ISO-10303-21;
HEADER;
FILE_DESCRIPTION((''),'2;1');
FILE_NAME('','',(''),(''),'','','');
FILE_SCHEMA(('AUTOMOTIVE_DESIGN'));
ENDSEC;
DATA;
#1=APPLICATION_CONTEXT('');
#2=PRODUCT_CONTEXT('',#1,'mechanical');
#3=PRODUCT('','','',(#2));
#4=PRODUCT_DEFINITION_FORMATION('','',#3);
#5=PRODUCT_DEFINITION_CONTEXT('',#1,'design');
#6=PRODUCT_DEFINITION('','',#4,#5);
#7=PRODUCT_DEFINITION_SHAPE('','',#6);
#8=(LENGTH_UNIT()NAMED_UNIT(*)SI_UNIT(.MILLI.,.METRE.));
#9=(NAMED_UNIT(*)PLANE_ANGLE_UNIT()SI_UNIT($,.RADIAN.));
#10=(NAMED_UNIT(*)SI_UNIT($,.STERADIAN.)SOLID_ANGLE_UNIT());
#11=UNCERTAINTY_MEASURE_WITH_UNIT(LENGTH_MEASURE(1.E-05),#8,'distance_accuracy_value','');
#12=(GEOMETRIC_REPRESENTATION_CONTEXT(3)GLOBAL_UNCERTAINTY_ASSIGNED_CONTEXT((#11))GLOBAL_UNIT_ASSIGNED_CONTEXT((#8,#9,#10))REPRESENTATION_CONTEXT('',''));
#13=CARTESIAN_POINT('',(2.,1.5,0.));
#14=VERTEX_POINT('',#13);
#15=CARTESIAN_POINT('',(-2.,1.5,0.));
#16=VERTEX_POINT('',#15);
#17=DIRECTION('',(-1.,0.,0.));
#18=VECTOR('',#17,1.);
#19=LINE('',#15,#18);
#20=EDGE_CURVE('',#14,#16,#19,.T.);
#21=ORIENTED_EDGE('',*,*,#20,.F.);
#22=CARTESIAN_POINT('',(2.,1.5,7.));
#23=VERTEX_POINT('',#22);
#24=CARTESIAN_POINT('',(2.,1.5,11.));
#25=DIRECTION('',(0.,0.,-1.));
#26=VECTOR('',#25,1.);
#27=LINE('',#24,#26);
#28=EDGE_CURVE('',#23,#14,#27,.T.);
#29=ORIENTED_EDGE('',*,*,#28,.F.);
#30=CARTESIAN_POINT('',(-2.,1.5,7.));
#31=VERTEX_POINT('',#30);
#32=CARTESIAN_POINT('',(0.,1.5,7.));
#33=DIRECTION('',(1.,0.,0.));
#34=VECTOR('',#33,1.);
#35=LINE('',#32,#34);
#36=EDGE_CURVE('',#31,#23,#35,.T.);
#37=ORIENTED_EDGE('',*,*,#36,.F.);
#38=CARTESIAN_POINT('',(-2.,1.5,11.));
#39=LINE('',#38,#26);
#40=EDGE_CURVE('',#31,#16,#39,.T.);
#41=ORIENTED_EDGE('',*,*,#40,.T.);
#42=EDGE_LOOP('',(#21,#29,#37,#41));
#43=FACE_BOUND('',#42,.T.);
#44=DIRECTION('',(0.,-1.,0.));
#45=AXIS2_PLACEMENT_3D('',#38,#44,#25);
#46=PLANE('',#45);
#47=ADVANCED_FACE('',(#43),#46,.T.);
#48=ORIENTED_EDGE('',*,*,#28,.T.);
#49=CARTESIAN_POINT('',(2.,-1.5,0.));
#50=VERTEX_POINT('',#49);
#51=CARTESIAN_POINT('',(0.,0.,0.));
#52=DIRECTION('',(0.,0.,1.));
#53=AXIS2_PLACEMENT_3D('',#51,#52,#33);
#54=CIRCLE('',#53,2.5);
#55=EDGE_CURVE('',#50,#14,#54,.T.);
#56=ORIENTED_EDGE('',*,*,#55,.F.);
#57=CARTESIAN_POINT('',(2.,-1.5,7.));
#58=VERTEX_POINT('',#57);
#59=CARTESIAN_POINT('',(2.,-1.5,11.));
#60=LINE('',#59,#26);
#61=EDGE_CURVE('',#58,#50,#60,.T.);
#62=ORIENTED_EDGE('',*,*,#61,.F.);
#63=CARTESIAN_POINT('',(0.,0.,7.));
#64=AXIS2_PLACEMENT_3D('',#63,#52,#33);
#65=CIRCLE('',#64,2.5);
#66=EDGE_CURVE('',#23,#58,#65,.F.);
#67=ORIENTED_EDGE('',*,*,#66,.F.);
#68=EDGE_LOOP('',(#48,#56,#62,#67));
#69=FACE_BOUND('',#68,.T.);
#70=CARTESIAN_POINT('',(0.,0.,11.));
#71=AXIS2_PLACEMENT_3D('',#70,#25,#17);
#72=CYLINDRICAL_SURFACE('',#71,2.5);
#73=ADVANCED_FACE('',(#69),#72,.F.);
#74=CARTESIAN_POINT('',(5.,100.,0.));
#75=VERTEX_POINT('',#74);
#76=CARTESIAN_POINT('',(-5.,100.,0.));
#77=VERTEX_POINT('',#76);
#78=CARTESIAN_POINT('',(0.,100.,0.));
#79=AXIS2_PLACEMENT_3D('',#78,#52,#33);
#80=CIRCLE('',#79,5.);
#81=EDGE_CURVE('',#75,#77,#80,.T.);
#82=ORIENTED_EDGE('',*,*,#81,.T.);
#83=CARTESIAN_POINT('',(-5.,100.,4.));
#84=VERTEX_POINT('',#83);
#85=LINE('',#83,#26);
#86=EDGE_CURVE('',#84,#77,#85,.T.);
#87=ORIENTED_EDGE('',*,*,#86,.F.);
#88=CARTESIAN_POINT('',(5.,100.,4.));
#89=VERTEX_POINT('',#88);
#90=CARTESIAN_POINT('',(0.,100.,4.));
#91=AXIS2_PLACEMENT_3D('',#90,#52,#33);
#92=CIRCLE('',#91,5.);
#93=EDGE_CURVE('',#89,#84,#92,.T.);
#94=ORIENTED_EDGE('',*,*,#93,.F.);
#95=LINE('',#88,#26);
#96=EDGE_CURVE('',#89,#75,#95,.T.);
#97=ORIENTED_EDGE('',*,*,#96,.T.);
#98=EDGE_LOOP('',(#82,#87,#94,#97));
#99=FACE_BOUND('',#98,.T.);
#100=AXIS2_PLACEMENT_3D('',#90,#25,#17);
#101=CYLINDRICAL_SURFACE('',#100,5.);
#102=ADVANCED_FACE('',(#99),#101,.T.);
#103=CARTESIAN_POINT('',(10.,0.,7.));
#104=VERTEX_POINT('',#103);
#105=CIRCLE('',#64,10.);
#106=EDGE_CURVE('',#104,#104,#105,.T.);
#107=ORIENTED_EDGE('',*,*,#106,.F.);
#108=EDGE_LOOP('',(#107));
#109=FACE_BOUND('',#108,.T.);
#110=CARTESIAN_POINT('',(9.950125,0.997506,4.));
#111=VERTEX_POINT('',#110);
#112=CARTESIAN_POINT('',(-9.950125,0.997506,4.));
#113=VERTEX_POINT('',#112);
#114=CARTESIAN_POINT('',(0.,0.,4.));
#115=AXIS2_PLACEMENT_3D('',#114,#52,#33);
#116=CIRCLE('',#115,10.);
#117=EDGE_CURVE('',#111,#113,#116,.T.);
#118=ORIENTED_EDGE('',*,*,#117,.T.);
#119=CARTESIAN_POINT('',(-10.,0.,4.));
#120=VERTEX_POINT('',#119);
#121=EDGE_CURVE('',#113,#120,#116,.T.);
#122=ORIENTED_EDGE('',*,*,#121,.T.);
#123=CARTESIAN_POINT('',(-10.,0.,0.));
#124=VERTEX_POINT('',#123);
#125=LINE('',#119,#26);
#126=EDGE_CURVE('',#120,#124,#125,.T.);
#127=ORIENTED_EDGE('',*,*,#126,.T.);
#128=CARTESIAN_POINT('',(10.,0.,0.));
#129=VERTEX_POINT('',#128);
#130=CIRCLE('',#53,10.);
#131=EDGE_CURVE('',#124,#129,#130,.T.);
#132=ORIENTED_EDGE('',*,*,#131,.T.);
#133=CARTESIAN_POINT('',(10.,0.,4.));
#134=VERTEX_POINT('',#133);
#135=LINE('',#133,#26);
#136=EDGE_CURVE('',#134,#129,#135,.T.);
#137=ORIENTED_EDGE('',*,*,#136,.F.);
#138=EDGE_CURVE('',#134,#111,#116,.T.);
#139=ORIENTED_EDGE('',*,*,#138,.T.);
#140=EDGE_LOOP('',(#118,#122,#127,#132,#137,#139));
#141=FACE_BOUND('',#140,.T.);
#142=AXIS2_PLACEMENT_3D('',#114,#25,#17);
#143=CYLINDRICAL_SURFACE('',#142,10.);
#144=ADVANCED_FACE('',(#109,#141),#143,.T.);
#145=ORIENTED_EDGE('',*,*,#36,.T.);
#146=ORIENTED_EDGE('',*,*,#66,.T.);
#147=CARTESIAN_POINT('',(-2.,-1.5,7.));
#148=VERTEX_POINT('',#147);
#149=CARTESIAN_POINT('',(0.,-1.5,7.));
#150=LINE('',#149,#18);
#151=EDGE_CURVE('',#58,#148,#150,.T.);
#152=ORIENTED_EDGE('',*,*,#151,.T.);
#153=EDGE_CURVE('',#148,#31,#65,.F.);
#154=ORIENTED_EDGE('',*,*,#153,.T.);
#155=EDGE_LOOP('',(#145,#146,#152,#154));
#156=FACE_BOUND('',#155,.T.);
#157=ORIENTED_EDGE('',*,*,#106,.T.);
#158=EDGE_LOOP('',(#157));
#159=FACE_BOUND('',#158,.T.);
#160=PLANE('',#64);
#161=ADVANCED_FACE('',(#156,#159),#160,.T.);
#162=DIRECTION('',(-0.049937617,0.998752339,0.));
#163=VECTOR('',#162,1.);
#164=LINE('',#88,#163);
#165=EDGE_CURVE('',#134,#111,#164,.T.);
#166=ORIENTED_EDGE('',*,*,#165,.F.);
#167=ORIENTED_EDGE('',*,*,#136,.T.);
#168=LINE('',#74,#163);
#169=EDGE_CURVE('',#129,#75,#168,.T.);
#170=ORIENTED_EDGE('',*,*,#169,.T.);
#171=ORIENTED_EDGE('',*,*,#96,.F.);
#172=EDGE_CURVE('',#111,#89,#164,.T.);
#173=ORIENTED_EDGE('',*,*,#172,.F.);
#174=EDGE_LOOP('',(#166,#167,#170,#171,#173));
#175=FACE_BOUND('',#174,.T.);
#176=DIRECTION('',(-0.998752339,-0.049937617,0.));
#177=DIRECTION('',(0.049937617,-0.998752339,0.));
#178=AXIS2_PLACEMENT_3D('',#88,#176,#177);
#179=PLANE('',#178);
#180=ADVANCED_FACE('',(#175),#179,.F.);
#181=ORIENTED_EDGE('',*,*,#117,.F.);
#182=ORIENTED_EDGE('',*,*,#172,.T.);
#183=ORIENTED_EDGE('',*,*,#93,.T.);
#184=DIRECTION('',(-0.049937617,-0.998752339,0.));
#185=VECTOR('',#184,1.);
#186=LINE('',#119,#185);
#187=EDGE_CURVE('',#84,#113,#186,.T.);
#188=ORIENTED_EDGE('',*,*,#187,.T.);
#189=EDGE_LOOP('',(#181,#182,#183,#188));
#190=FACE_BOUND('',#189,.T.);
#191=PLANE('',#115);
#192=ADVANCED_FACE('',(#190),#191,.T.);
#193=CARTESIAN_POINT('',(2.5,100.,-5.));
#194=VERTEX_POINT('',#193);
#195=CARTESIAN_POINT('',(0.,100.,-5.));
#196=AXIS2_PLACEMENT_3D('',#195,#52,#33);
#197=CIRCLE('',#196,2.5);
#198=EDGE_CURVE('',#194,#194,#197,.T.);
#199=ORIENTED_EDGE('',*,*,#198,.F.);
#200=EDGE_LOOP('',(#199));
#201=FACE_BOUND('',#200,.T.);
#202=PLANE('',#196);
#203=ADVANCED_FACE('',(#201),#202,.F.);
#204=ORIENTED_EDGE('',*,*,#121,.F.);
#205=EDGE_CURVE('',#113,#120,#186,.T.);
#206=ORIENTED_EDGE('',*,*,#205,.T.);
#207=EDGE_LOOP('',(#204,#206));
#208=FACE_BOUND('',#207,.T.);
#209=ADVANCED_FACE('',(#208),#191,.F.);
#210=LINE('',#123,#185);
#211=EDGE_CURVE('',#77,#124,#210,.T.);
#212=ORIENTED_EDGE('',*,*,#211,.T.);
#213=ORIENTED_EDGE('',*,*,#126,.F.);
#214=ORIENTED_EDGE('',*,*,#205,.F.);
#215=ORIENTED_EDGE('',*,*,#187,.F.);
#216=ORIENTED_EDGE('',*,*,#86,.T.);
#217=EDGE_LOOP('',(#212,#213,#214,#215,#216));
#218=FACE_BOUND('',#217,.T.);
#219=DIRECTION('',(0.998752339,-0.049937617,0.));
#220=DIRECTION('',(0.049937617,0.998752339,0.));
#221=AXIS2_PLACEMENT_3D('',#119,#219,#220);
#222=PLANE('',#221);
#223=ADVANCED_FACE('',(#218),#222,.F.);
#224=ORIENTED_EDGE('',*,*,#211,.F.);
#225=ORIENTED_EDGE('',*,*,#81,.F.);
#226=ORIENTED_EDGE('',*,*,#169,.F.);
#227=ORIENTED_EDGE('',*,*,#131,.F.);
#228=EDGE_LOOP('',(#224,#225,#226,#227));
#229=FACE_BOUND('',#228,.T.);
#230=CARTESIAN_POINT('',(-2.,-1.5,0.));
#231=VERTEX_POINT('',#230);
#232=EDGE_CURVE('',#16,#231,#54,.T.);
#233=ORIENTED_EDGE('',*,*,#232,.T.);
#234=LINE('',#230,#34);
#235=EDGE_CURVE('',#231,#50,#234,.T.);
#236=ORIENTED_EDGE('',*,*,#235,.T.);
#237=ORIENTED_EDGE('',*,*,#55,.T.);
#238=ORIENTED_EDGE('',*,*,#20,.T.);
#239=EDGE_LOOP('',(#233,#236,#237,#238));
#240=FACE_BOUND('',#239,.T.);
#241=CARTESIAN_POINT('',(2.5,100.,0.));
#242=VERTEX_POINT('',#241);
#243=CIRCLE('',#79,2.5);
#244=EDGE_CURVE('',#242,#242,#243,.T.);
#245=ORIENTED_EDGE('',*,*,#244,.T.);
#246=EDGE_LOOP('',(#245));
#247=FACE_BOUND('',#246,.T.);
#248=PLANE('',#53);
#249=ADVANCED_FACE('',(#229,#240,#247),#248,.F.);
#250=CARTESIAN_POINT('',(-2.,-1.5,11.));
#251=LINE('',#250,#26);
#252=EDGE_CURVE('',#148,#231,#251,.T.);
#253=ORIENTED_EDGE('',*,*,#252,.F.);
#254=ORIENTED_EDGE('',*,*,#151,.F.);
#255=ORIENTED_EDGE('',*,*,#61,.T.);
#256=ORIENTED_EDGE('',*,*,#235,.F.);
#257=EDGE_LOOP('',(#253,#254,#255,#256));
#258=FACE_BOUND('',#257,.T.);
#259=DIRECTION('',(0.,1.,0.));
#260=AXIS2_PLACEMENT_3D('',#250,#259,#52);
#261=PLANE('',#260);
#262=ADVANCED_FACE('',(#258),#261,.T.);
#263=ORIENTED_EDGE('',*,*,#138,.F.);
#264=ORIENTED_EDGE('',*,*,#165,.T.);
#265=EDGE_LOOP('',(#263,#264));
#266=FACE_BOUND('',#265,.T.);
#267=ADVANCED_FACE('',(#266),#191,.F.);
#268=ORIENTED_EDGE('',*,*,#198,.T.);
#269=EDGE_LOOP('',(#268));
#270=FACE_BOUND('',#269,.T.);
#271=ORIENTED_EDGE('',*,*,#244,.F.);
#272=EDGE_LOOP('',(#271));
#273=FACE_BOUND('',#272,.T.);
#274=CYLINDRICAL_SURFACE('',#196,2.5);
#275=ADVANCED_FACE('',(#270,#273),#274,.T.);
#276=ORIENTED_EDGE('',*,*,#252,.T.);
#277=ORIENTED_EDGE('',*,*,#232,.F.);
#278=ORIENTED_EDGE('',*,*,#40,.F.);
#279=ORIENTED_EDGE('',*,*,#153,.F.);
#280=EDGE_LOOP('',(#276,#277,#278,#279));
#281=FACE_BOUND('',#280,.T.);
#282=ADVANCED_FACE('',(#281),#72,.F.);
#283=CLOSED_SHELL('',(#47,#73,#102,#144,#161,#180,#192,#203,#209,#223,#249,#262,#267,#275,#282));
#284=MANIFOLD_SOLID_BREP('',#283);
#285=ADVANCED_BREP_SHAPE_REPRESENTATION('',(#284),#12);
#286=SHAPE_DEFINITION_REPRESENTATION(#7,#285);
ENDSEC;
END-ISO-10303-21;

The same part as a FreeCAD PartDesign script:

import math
import FreeCAD as App
import Part
import Sketcher
Q = App.Units.Quantity

doc = App.newDocument("Part")
body = doc.addObject("PartDesign::Body", "Body")

# Sketch on XY plane
sketch1 = body.newObject("Sketcher::SketchObject", "Sketch")
sketch1.AttachmentSupport = (doc.getObject("XY_Plane"), [""])
sketch1.MapMode = "FlatFace"
sketch1.addGeometry([
    Part.LineSegment(App.Vector(-5, 100, 0), App.Vector(-10, 0, 0)),
    Part.ArcOfCircle(Part.Circle(App.Vector(0, 0, 0), App.Vector(0, 0, 1), 10), math.radians(180), math.radians(360)),
    Part.LineSegment(App.Vector(10, 0, 0), App.Vector(5, 100, 0)),
    Part.ArcOfCircle(Part.Circle(App.Vector(0, 100, 0), App.Vector(0, 0, 1), 5), math.radians(0), math.radians(180)),
], False)
sketch1.addConstraint([
    Sketcher.Constraint("Coincident", 0, 2, 1, 1),
    Sketcher.Constraint("Coincident", 1, 2, 2, 1),
    Sketcher.Constraint("Coincident", 2, 2, 3, 1),
    Sketcher.Constraint("Coincident", 3, 2, 0, 1),
    Sketcher.Constraint("Coincident", 1, 3, -1, 1),
    Sketcher.Constraint("Symmetric", 2, 2, 3, 2, -2),
    Sketcher.Constraint("PointOnObject", 0, 2, -1),
    Sketcher.Constraint("PointOnObject", 1, 2, -1),
    Sketcher.Constraint("Horizontal", 3, 3, 2, 2),
    Sketcher.Constraint("Radius", 1, Q("10 mm")),
    Sketcher.Constraint("Radius", 3, Q("5 mm")),
    Sketcher.Constraint("DistanceY", -1, 1, 3, 3, Q("100 mm")),
])
pad1 = body.newObject("PartDesign::Pad", "Pad")
pad1.Profile = sketch1
pad1.Length = 4

# Sketch on XY plane
sketch2 = body.newObject("Sketcher::SketchObject", "Sketch001")
sketch2.AttachmentSupport = (doc.getObject("XY_Plane"), [""])
sketch2.MapMode = "FlatFace"
sketch2.AttachmentOffset = App.Placement(App.Vector(0, 0, 4), App.Rotation())
sketch2.addGeometry(Part.Circle(App.Vector(0, 0, 0), App.Vector(0, 0, 1), 10), False)
sketch2.addConstraint([
    Sketcher.Constraint("Coincident", 0, 3, -1, 1),
    Sketcher.Constraint("Diameter", 0, Q("20 mm")),
])
pad2 = body.newObject("PartDesign::Pad", "Pad001")
pad2.Profile = sketch2
pad2.Length = 3

# Sketch on XY plane
sketch3 = body.newObject("Sketcher::SketchObject", "Sketch002")
sketch3.AttachmentSupport = (doc.getObject("XY_Plane"), [""])
sketch3.MapMode = "FlatFace"
sketch3.addGeometry([
    Part.LineSegment(App.Vector(-2, -1.5, 0), App.Vector(2, -1.5, 0)),
    Part.ArcOfCircle(Part.Circle(App.Vector(0, 0, 0), App.Vector(0, 0, 1), 2.5), math.radians(-36.869898), math.radians(36.869898)),
    Part.LineSegment(App.Vector(2, 1.5, 0), App.Vector(-2, 1.5, 0)),
    Part.ArcOfCircle(Part.Circle(App.Vector(0, 0, 0), App.Vector(0, 0, 1), 2.5), math.radians(143.130102), math.radians(216.869898)),
], False)
sketch3.addConstraint([
    Sketcher.Constraint("Coincident", 0, 2, 1, 1),
    Sketcher.Constraint("Coincident", 1, 2, 2, 1),
    Sketcher.Constraint("Coincident", 2, 2, 3, 1),
    Sketcher.Constraint("Coincident", 3, 2, 0, 1),
    Sketcher.Constraint("Horizontal", 0),
    Sketcher.Constraint("Horizontal", 2),
    Sketcher.Constraint("Coincident", 1, 3, -1, 1),
    Sketcher.Constraint("Coincident", 3, 3, -1, 1),
    Sketcher.Constraint("Equal", 1, 3),
    Sketcher.Constraint("Vertical", 0, 2, 1, 2),
    Sketcher.Constraint("Radius", 1, Q("2.5 mm")),
    Sketcher.Constraint("DistanceX", 0, 1, 0, 2, Q("4 mm")),
])
pocket1 = body.newObject("PartDesign::Pocket", "Pocket")
pocket1.Profile = sketch3
pocket1.Length = 11
pocket1.Reversed = True

# Sketch on XY plane
sketch4 = body.newObject("Sketcher::SketchObject", "Sketch003")
sketch4.AttachmentSupport = (doc.getObject("XY_Plane"), [""])
sketch4.MapMode = "FlatFace"
sketch4.AttachmentOffset = App.Placement(App.Vector(0, 0, 4), App.Rotation())
sketch4.addGeometry(Part.Circle(App.Vector(0, 100, 0), App.Vector(0, 0, 1), 2.5), False)
sketch4.addConstraint([
    Sketcher.Constraint("PointOnObject", 0, 3, -2),
    Sketcher.Constraint("Diameter", 0, Q("5 mm")),
    Sketcher.Constraint("DistanceY", -1, 1, 0, 3, Q("100 mm")),
])
pad3 = body.newObject("PartDesign::Pad", "Pad002")
pad3.Profile = sketch4
pad3.Length = 9
pad3.Reversed = True

doc.recompute()
